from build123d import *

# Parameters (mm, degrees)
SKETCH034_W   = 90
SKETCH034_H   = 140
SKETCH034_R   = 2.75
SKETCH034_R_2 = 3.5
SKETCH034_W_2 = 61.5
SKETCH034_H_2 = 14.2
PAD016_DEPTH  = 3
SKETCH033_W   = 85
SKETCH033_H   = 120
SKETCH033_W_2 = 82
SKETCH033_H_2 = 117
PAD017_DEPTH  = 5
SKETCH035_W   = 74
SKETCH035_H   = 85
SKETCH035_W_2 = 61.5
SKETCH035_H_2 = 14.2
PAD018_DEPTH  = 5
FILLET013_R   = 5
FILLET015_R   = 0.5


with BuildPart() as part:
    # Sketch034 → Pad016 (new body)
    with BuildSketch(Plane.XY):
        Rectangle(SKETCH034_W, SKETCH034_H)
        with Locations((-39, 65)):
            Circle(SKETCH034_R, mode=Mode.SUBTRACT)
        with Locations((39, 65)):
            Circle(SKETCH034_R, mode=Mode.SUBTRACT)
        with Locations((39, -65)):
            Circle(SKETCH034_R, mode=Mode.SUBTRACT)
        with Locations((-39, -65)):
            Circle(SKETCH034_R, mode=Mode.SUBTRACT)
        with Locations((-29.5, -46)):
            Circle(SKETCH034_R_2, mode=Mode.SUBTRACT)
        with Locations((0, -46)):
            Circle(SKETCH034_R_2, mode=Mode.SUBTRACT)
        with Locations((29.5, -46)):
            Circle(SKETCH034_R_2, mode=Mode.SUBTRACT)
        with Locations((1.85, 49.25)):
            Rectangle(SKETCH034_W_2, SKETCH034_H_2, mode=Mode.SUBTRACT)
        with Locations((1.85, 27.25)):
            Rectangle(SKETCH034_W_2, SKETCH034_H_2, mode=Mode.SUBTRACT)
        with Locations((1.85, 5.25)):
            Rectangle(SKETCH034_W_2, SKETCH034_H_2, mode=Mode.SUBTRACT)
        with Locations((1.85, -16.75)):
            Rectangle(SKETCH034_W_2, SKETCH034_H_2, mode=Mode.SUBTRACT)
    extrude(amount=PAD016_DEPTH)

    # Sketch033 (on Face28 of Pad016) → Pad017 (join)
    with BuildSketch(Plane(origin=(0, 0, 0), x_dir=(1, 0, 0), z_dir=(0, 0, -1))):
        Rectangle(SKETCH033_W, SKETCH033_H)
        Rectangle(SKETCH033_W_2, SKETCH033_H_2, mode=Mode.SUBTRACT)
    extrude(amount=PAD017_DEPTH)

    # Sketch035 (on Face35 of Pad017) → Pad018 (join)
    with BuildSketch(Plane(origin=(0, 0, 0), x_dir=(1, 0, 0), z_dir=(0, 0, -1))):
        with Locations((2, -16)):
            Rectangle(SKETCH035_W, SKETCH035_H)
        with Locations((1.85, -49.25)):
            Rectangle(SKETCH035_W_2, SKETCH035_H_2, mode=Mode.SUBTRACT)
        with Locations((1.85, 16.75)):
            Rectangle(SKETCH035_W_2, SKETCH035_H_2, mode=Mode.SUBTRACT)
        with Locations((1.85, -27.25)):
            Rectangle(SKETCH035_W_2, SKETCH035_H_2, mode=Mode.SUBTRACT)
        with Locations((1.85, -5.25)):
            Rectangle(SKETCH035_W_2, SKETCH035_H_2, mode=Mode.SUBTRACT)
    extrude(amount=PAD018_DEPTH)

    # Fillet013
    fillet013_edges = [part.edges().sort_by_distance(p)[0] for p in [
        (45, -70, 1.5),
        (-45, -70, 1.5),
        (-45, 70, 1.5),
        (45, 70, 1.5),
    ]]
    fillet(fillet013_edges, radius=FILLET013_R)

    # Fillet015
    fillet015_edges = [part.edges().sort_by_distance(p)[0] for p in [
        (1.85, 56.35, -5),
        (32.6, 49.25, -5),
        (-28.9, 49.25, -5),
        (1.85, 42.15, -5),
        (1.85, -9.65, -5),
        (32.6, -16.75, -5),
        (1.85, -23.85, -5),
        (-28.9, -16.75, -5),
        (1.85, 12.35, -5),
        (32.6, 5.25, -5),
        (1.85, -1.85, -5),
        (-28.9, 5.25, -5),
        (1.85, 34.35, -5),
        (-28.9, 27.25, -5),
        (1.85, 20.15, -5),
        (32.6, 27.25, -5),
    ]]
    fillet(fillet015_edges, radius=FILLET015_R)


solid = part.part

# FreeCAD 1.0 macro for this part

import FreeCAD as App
import Part
import Sketcher
from FreeCAD import Vector


def edges_at(feature, points):
    """Names of the edges that pass closest to the given points."""
    edges = feature.Shape.Edges
    near = lambda p: min(range(len(edges)), key=lambda i: edges[i].distToShape(Part.Vertex(*p))[0])
    return sorted({f"Edge{near(p) + 1}" for p in points})

doc = App.newDocument("Part")
params = doc.addObject("Spreadsheet::Sheet", "Params")
for row, (alias, value) in enumerate([
    ("sketch1_diameter", "7 mm"),
    ("sketch1_diameter2", "5.5 mm"),
    ("sketch1_width", "90 mm"),
    ("sketch1_height", "140 mm"),
    ("sketch1_width2", "61.5 mm"),
    ("pad1_length", "3 mm"),
    ("sketch2_width", "85 mm"),
    ("sketch2_width2", "82 mm"),
    ("sketch2_height", "120 mm"),
    ("sketch2_height2", "117 mm"),
    ("pad2_length", "5 mm"),
    ("sketch3_width", "74 mm"),
    ("sketch3_height", "85 mm"),
    ("sketch3_width2", "61.5 mm"),
    ("sketch3_height2", "14.2 mm"),
    ("pad3_length", "5 mm"),
    ("fillet_radius", "5 mm"),
    ("fillet2_radius", "0.5 mm"),
], start=1):
    params.set(f"A{row}", alias)
    params.set(f"B{row}", "=" + value)
    params.setAlias(f"B{row}", alias)

body = doc.addObject("PartDesign::Body", "Body")

sketch1 = body.newObject("Sketcher::SketchObject", "Sketch")
sketch1.AttachmentSupport = (doc.getObject("XY_Plane"), [""])
sketch1.MapMode = "FlatFace"
sketch1.addGeometry(Part.LineSegment(Vector(-45, 70, 0), Vector(-45, -70, 0)), False)
sketch1.addGeometry(Part.LineSegment(Vector(-45, -70, 0), Vector(45, -70, 0)), False)
sketch1.addGeometry(Part.LineSegment(Vector(45, -70, 0), Vector(45, 70, 0)), False)
sketch1.addGeometry(Part.LineSegment(Vector(45, 70, 0), Vector(-45, 70, 0)), False)
sketch1.addGeometry(Part.Circle(Vector(-39, -65, 0), Vector(0, 0, 1), 2.8), False)
sketch1.addGeometry(Part.Circle(Vector(-29.5, -46, 0), Vector(0, 0, 1), 3.5), False)
sketch1.addGeometry(Part.Circle(Vector(0, -46, 0), Vector(0, 0, 1), 3.5), False)
sketch1.addGeometry(Part.Circle(Vector(39, -65, 0), Vector(0, 0, 1), 2.8), False)
sketch1.addGeometry(Part.Circle(Vector(29.5, -46, 0), Vector(0, 0, 1), 3.5), False)
sketch1.addGeometry(Part.LineSegment(Vector(32.6, -23.9, 0), Vector(-28.9, -23.9, 0)), False)
sketch1.addGeometry(Part.LineSegment(Vector(-28.9, -23.9, 0), Vector(-28.9, -9.7, 0)), False)
sketch1.addGeometry(Part.LineSegment(Vector(-28.9, -9.7, 0), Vector(32.6, -9.7, 0)), False)
sketch1.addGeometry(Part.LineSegment(Vector(32.6, -9.7, 0), Vector(32.6, -23.9, 0)), False)
sketch1.addGeometry(Part.Circle(Vector(-39, 65, 0), Vector(0, 0, 1), 2.8), False)
sketch1.addGeometry(Part.LineSegment(Vector(32.6, -1.9, 0), Vector(-28.9, -1.9, 0)), False)
sketch1.addGeometry(Part.LineSegment(Vector(-28.9, -1.9, 0), Vector(-28.9, 12.3, 0)), False)
sketch1.addGeometry(Part.LineSegment(Vector(-28.9, 12.3, 0), Vector(32.6, 12.3, 0)), False)
sketch1.addGeometry(Part.LineSegment(Vector(32.6, 12.3, 0), Vector(32.6, -1.9, 0)), False)
sketch1.addGeometry(Part.LineSegment(Vector(32.6, 20.1, 0), Vector(-28.9, 20.1, 0)), False)
sketch1.addGeometry(Part.LineSegment(Vector(-28.9, 20.1, 0), Vector(-28.9, 34.4, 0)), False)
sketch1.addGeometry(Part.LineSegment(Vector(-28.9, 34.4, 0), Vector(32.6, 34.4, 0)), False)
sketch1.addGeometry(Part.LineSegment(Vector(32.6, 34.4, 0), Vector(32.6, 20.1, 0)), False)
sketch1.addGeometry(Part.LineSegment(Vector(32.6, 42.1, 0), Vector(-28.9, 42.1, 0)), False)
sketch1.addGeometry(Part.LineSegment(Vector(-28.9, 42.1, 0), Vector(-28.9, 56.4, 0)), False)
sketch1.addGeometry(Part.LineSegment(Vector(-28.9, 56.4, 0), Vector(32.6, 56.4, 0)), False)
sketch1.addGeometry(Part.LineSegment(Vector(32.6, 56.4, 0), Vector(32.6, 42.1, 0)), False)
sketch1.addGeometry(Part.Circle(Vector(39, 65, 0), Vector(0, 0, 1), 2.8), False)
sketch1.addConstraint(Sketcher.Constraint("Coincident", 0, 2, 1, 1))
sketch1.addConstraint(Sketcher.Constraint("Coincident", 1, 2, 2, 1))
sketch1.addConstraint(Sketcher.Constraint("Coincident", 2, 2, 3, 1))
sketch1.addConstraint(Sketcher.Constraint("Coincident", 3, 2, 0, 1))
sketch1.addConstraint(Sketcher.Constraint("Coincident", 9, 2, 10, 1))
sketch1.addConstraint(Sketcher.Constraint("Coincident", 10, 2, 11, 1))
sketch1.addConstraint(Sketcher.Constraint("Coincident", 11, 2, 12, 1))
sketch1.addConstraint(Sketcher.Constraint("Coincident", 12, 2, 9, 1))
sketch1.addConstraint(Sketcher.Constraint("Coincident", 14, 2, 15, 1))
sketch1.addConstraint(Sketcher.Constraint("Coincident", 15, 2, 16, 1))
sketch1.addConstraint(Sketcher.Constraint("Coincident", 16, 2, 17, 1))
sketch1.addConstraint(Sketcher.Constraint("Coincident", 17, 2, 14, 1))
sketch1.addConstraint(Sketcher.Constraint("Coincident", 18, 2, 19, 1))
sketch1.addConstraint(Sketcher.Constraint("Coincident", 19, 2, 20, 1))
sketch1.addConstraint(Sketcher.Constraint("Coincident", 20, 2, 21, 1))
sketch1.addConstraint(Sketcher.Constraint("Coincident", 21, 2, 18, 1))
sketch1.addConstraint(Sketcher.Constraint("Coincident", 22, 2, 23, 1))
sketch1.addConstraint(Sketcher.Constraint("Coincident", 23, 2, 24, 1))
sketch1.addConstraint(Sketcher.Constraint("Coincident", 24, 2, 25, 1))
sketch1.addConstraint(Sketcher.Constraint("Coincident", 25, 2, 22, 1))
sketch1.addConstraint(Sketcher.Constraint("Vertical", 0))
sketch1.addConstraint(Sketcher.Constraint("Horizontal", 1))
sketch1.addConstraint(Sketcher.Constraint("Vertical", 2))
sketch1.addConstraint(Sketcher.Constraint("Horizontal", 3))
sketch1.addConstraint(Sketcher.Constraint("Horizontal", 9))
sketch1.addConstraint(Sketcher.Constraint("Vertical", 10))
sketch1.addConstraint(Sketcher.Constraint("Horizontal", 11))
sketch1.addConstraint(Sketcher.Constraint("Vertical", 12))
sketch1.addConstraint(Sketcher.Constraint("Horizontal", 14))
sketch1.addConstraint(Sketcher.Constraint("Vertical", 15))
sketch1.addConstraint(Sketcher.Constraint("Horizontal", 16))
sketch1.addConstraint(Sketcher.Constraint("Vertical", 17))
sketch1.addConstraint(Sketcher.Constraint("Horizontal", 18))
sketch1.addConstraint(Sketcher.Constraint("Vertical", 19))
sketch1.addConstraint(Sketcher.Constraint("Horizontal", 20))
sketch1.addConstraint(Sketcher.Constraint("Vertical", 21))
sketch1.addConstraint(Sketcher.Constraint("Horizontal", 22))
sketch1.addConstraint(Sketcher.Constraint("Vertical", 23))
sketch1.addConstraint(Sketcher.Constraint("Horizontal", 24))
sketch1.addConstraint(Sketcher.Constraint("Vertical", 25))
sketch1.addConstraint(Sketcher.Constraint("Equal", 5, 6))
sketch1.addConstraint(Sketcher.Constraint("Equal", 4, 7))
sketch1.addConstraint(Sketcher.Constraint("Equal", 6, 8))
sketch1.addConstraint(Sketcher.Constraint("Equal", 7, 13))
sketch1.addConstraint(Sketcher.Constraint("Equal", 13, 26))
sketch1.addConstraint(Sketcher.Constraint("Symmetric", 7, 3, 13, 3, -1, 1))
sketch1.addConstraint(Sketcher.Constraint("Symmetric", 4, 3, 26, 3, -1, 1))
sketch1.addConstraint(Sketcher.Constraint("Symmetric", 0, 2, 2, 2, -1, 1))
sketch1.addConstraint(Sketcher.Constraint("Symmetric", 4, 3, 7, 3, -2))
sketch1.addConstraint(Sketcher.Constraint("Symmetric", 5, 3, 8, 3, -2))
sketch1.addConstraint(Sketcher.Constraint("PointOnObject", 6, 3, -2))
sketch1.addConstraint(Sketcher.Constraint("Horizontal", 5, 3, 6, 3))
sketch1.addConstraint(Sketcher.Constraint("Vertical", 10, 2, 14, 2))
sketch1.addConstraint(Sketcher.Constraint("Vertical", 12, 2, 16, 2))
sketch1.addConstraint(Sketcher.Constraint("Vertical", 15, 2, 18, 2))
sketch1.addConstraint(Sketcher.Constraint("Vertical", 17, 2, 20, 2))
sketch1.addConstraint(Sketcher.Constraint("Vertical", 19, 2, 22, 2))
sketch1.addConstraint(Sketcher.Constraint("Vertical", 21, 2, 24, 2))
sketch1.addConstraint(Sketcher.Constraint("Equal", 12, 15))
sketch1.addConstraint(Sketcher.Constraint("Equal", 17, 19))
sketch1.addConstraint(Sketcher.Constraint("Equal", 21, 23))
sketch1.addConstraint(Sketcher.Constraint("Diameter", 5, 7.0))
sketch1.addConstraint(Sketcher.Constraint("Diameter", 4, 5.5))
sketch1.addConstraint(Sketcher.Constraint("DistanceX", 1, 1, 1, 2, 90.0))
sketch1.addConstraint(Sketcher.Constraint("DistanceY", 0, 2, 0, 1, 140.0))
sketch1.addConstraint(Sketcher.Constraint("DistanceX", 9, 2, 9, 1, 61.5))
sketch1.addConstraint(Sketcher.Constraint("DistanceY", 10, 1, 10, 2, 14.2))
sketch1.addConstraint(Sketcher.Constraint("DistanceX", 4, 3, -1, 1, 39.0))
sketch1.addConstraint(Sketcher.Constraint("DistanceY", 4, 3, -1, 1, 65.0))
sketch1.addConstraint(Sketcher.Constraint("DistanceY", 5, 3, -1, 1, 46.0))
sketch1.addConstraint(Sketcher.Constraint("DistanceX", 5, 3, 8, 3, 59.0))
sketch1.addConstraint(Sketcher.Constraint("DistanceY", 9, 2, 14, 2, 22.0))
sketch1.addConstraint(Sketcher.Constraint("DistanceY", 14, 2, 18, 2, 22.0))
sketch1.addConstraint(Sketcher.Constraint("DistanceY", 18, 2, 22, 2, 22.0))
sketch1.addConstraint(Sketcher.Constraint("DistanceX", 9, 2, -1, 1, 28.9))
sketch1.addConstraint(Sketcher.Constraint("DistanceY", 9, 2, -1, 1, 23.85))
sketch1.setExpression("Constraints[61]", "Params.sketch1_diameter")
sketch1.setExpression("Constraints[62]", "Params.sketch1_diameter2")
sketch1.setExpression("Constraints[63]", "Params.sketch1_width")
sketch1.setExpression("Constraints[64]", "Params.sketch1_height")
sketch1.setExpression("Constraints[65]", "Params.sketch1_width2")
pad1 = body.newObject("PartDesign::Pad", "Pad")
pad1.Profile = sketch1
pad1.setExpression("Length", "Params.pad1_length")

sketch2 = body.newObject("Sketcher::SketchObject", "Sketch001")
sketch2.AttachmentSupport = (doc.getObject("XY_Plane"), [""])
sketch2.MapMode = "FlatFace"
sketch2.addGeometry(Part.LineSegment(Vector(-42, -60, 0), Vector(-42, 60, 0)), False)
sketch2.addGeometry(Part.LineSegment(Vector(-42, 60, 0), Vector(42, 60, 0)), False)
sketch2.addGeometry(Part.LineSegment(Vector(42, 60, 0), Vector(42, -60, 0)), False)
sketch2.addGeometry(Part.LineSegment(Vector(42, -60, 0), Vector(-42, -60, 0)), False)
sketch2.addGeometry(Part.LineSegment(Vector(41, 58, 0), Vector(-41, 58, 0)), False)
sketch2.addGeometry(Part.LineSegment(Vector(-41, 58, 0), Vector(-41, -58, 0)), False)
sketch2.addGeometry(Part.LineSegment(Vector(-41, -58, 0), Vector(41, -58, 0)), False)
sketch2.addGeometry(Part.LineSegment(Vector(41, -58, 0), Vector(41, 58, 0)), False)
sketch2.addConstraint(Sketcher.Constraint("Coincident", 0, 2, 1, 1))
sketch2.addConstraint(Sketcher.Constraint("Coincident", 1, 2, 2, 1))
sketch2.addConstraint(Sketcher.Constraint("Coincident", 2, 2, 3, 1))
sketch2.addConstraint(Sketcher.Constraint("Coincident", 3, 2, 0, 1))
sketch2.addConstraint(Sketcher.Constraint("Coincident", 4, 2, 5, 1))
sketch2.addConstraint(Sketcher.Constraint("Coincident", 5, 2, 6, 1))
sketch2.addConstraint(Sketcher.Constraint("Coincident", 6, 2, 7, 1))
sketch2.addConstraint(Sketcher.Constraint("Coincident", 7, 2, 4, 1))
sketch2.addConstraint(Sketcher.Constraint("Vertical", 0))
sketch2.addConstraint(Sketcher.Constraint("Horizontal", 1))
sketch2.addConstraint(Sketcher.Constraint("Vertical", 2))
sketch2.addConstraint(Sketcher.Constraint("Horizontal", 3))
sketch2.addConstraint(Sketcher.Constraint("Horizontal", 4))
sketch2.addConstraint(Sketcher.Constraint("Vertical", 5))
sketch2.addConstraint(Sketcher.Constraint("Horizontal", 6))
sketch2.addConstraint(Sketcher.Constraint("Vertical", 7))
sketch2.addConstraint(Sketcher.Constraint("Symmetric", 0, 2, 2, 2, -1, 1))
sketch2.addConstraint(Sketcher.Constraint("Symmetric", 4, 2, 6, 2, -1, 1))
sketch2.addConstraint(Sketcher.Constraint("DistanceX", 1, 1, 1, 2, 85.0))
sketch2.addConstraint(Sketcher.Constraint("DistanceX", 4, 2, 4, 1, 82.0))
sketch2.addConstraint(Sketcher.Constraint("DistanceY", 0, 1, 0, 2, 120.0))
sketch2.addConstraint(Sketcher.Constraint("DistanceY", 5, 2, 5, 1, 117.0))
sketch2.setExpression("Constraints[18]", "Params.sketch2_width")
sketch2.setExpression("Constraints[19]", "Params.sketch2_width2")
sketch2.setExpression("Constraints[20]", "Params.sketch2_height")
sketch2.setExpression("Constraints[21]", "Params.sketch2_height2")
pad2 = body.newObject("PartDesign::Pad", "Pad001")
pad2.Profile = sketch2
pad2.setExpression("Length", "Params.pad2_length")
pad2.Reversed = True

sketch3 = body.newObject("Sketcher::SketchObject", "Sketch002")
sketch3.AttachmentSupport = (doc.getObject("XY_Plane"), [""])
sketch3.MapMode = "FlatFace"
sketch3.addGeometry(Part.LineSegment(Vector(-35, -26, 0), Vector(-35, 58, 0)), False)
sketch3.addGeometry(Part.LineSegment(Vector(-35, 58, 0), Vector(39, 58, 0)), False)
sketch3.addGeometry(Part.LineSegment(Vector(39, 58, 0), Vector(39, -26, 0)), False)
sketch3.addGeometry(Part.LineSegment(Vector(39, -26, 0), Vector(-35, -26, 0)), False)
sketch3.addGeometry(Part.LineSegment(Vector(33, 56, 0), Vector(-29, 56, 0)), False)
sketch3.addGeometry(Part.LineSegment(Vector(-29, 56, 0), Vector(-29, 42, 0)), False)
sketch3.addGeometry(Part.LineSegment(Vector(-29, 42, 0), Vector(33, 42, 0)), False)
sketch3.addGeometry(Part.LineSegment(Vector(33, 42, 0), Vector(33, 56, 0)), False)
sketch3.addGeometry(Part.LineSegment(Vector(33, 34, 0), Vector(-29, 34, 0)), False)
sketch3.addGeometry(Part.LineSegment(Vector(-29, 34, 0), Vector(-29, 20, 0)), False)
sketch3.addGeometry(Part.LineSegment(Vector(-29, 20, 0), Vector(33, 20, 0)), False)
sketch3.addGeometry(Part.LineSegment(Vector(33, 20, 0), Vector(33, 34, 0)), False)
sketch3.addGeometry(Part.LineSegment(Vector(33, 12, 0), Vector(-29, 12, 0)), False)
sketch3.addGeometry(Part.LineSegment(Vector(-29, 12, 0), Vector(-29, -2, 0)), False)
sketch3.addGeometry(Part.LineSegment(Vector(-29, -2, 0), Vector(33, -2, 0)), False)
sketch3.addGeometry(Part.LineSegment(Vector(33, -2, 0), Vector(33, 12, 0)), False)
sketch3.addGeometry(Part.LineSegment(Vector(33, -10, 0), Vector(-29, -10, 0)), False)
sketch3.addGeometry(Part.LineSegment(Vector(-29, -10, 0), Vector(-29, -24, 0)), False)
sketch3.addGeometry(Part.LineSegment(Vector(-29, -24, 0), Vector(33, -24, 0)), False)
sketch3.addGeometry(Part.LineSegment(Vector(33, -24, 0), Vector(33, -10, 0)), False)
sketch3.addConstraint(Sketcher.Constraint("Coincident", 0, 2, 1, 1))
sketch3.addConstraint(Sketcher.Constraint("Coincident", 1, 2, 2, 1))
sketch3.addConstraint(Sketcher.Constraint("Coincident", 2, 2, 3, 1))
sketch3.addConstraint(Sketcher.Constraint("Coincident", 3, 2, 0, 1))
sketch3.addConstraint(Sketcher.Constraint("Coincident", 4, 2, 5, 1))
sketch3.addConstraint(Sketcher.Constraint("Coincident", 5, 2, 6, 1))
sketch3.addConstraint(Sketcher.Constraint("Coincident", 6, 2, 7, 1))
sketch3.addConstraint(Sketcher.Constraint("Coincident", 7, 2, 4, 1))
sketch3.addConstraint(Sketcher.Constraint("Coincident", 8, 2, 9, 1))
sketch3.addConstraint(Sketcher.Constraint("Coincident", 9, 2, 10, 1))
sketch3.addConstraint(Sketcher.Constraint("Coincident", 10, 2, 11, 1))
sketch3.addConstraint(Sketcher.Constraint("Coincident", 11, 2, 8, 1))
sketch3.addConstraint(Sketcher.Constraint("Coincident", 12, 2, 13, 1))
sketch3.addConstraint(Sketcher.Constraint("Coincident", 13, 2, 14, 1))
sketch3.addConstraint(Sketcher.Constraint("Coincident", 14, 2, 15, 1))
sketch3.addConstraint(Sketcher.Constraint("Coincident", 15, 2, 12, 1))
sketch3.addConstraint(Sketcher.Constraint("Coincident", 16, 2, 17, 1))
sketch3.addConstraint(Sketcher.Constraint("Coincident", 17, 2, 18, 1))
sketch3.addConstraint(Sketcher.Constraint("Coincident", 18, 2, 19, 1))
sketch3.addConstraint(Sketcher.Constraint("Coincident", 19, 2, 16, 1))
sketch3.addConstraint(Sketcher.Constraint("Vertical", 0))
sketch3.addConstraint(Sketcher.Constraint("Horizontal", 1))
sketch3.addConstraint(Sketcher.Constraint("Vertical", 2))
sketch3.addConstraint(Sketcher.Constraint("Horizontal", 3))
sketch3.addConstraint(Sketcher.Constraint("Horizontal", 4))
sketch3.addConstraint(Sketcher.Constraint("Vertical", 5))
sketch3.addConstraint(Sketcher.Constraint("Horizontal", 6))
sketch3.addConstraint(Sketcher.Constraint("Vertical", 7))
sketch3.addConstraint(Sketcher.Constraint("Horizontal", 8))
sketch3.addConstraint(Sketcher.Constraint("Vertical", 9))
sketch3.addConstraint(Sketcher.Constraint("Horizontal", 10))
sketch3.addConstraint(Sketcher.Constraint("Vertical", 11))
sketch3.addConstraint(Sketcher.Constraint("Horizontal", 12))
sketch3.addConstraint(Sketcher.Constraint("Vertical", 13))
sketch3.addConstraint(Sketcher.Constraint("Horizontal", 14))
sketch3.addConstraint(Sketcher.Constraint("Vertical", 15))
sketch3.addConstraint(Sketcher.Constraint("Horizontal", 16))
sketch3.addConstraint(Sketcher.Constraint("Vertical", 17))
sketch3.addConstraint(Sketcher.Constraint("Horizontal", 18))
sketch3.addConstraint(Sketcher.Constraint("Vertical", 19))
sketch3.addConstraint(Sketcher.Constraint("Vertical", 5, 2, 8, 2))
sketch3.addConstraint(Sketcher.Constraint("Vertical", 7, 2, 10, 2))
sketch3.addConstraint(Sketcher.Constraint("Vertical", 9, 2, 12, 2))
sketch3.addConstraint(Sketcher.Constraint("Vertical", 11, 2, 14, 2))
sketch3.addConstraint(Sketcher.Constraint("Vertical", 13, 2, 16, 2))
sketch3.addConstraint(Sketcher.Constraint("Vertical", 15, 2, 18, 2))
sketch3.addConstraint(Sketcher.Constraint("Equal", 7, 9))
sketch3.addConstraint(Sketcher.Constraint("Equal", 11, 13))
sketch3.addConstraint(Sketcher.Constraint("Equal", 15, 17))
sketch3.addConstraint(Sketcher.Constraint("DistanceX", 1, 1, 1, 2, 74.0))
sketch3.addConstraint(Sketcher.Constraint("DistanceY", 0, 1, 0, 2, 85.0))
sketch3.addConstraint(Sketcher.Constraint("DistanceX", 4, 2, 4, 1, 61.5))
sketch3.addConstraint(Sketcher.Constraint("DistanceY", 5, 2, 5, 1, 14.2))
sketch3.addConstraint(Sketcher.Constraint("DistanceX", 0, 2, -1, 1, 35.0))
sketch3.addConstraint(Sketcher.Constraint("DistanceY", 8, 2, 4, 2, 22.0))
sketch3.addConstraint(Sketcher.Constraint("DistanceY", 12, 2, 8, 2, 22.0))
sketch3.addConstraint(Sketcher.Constraint("DistanceY", 16, 2, 12, 2, 22.0))
sketch3.addConstraint(Sketcher.Constraint("DistanceY", -1, 1, 0, 2, 58.5))
sketch3.addConstraint(Sketcher.Constraint("DistanceX", 4, 2, -1, 1, 28.9))
sketch3.addConstraint(Sketcher.Constraint("DistanceY", -1, 1, 4, 2, 56.35))
sketch3.setExpression("Constraints[49]", "Params.sketch3_width")
sketch3.setExpression("Constraints[50]", "Params.sketch3_height")
sketch3.setExpression("Constraints[51]", "Params.sketch3_width2")
sketch3.setExpression("Constraints[52]", "Params.sketch3_height2")
pad3 = body.newObject("PartDesign::Pad", "Pad002")
pad3.Profile = sketch3
pad3.setExpression("Length", "Params.pad3_length")
pad3.Reversed = True
doc.recompute()

fillet = body.newObject("PartDesign::Fillet", "Fillet")
fillet.Base = (pad3, edges_at(pad3, [
    (45, -70, 1.5),
    (-45, -70, 1.5),
    (-45, 70, 1.5),
    (45, 70, 1.5),
]))
fillet.setExpression("Radius", "Params.fillet_radius")
doc.recompute()

fillet2 = body.newObject("PartDesign::Fillet", "Fillet001")
fillet2.Base = (fillet, edges_at(fillet, [
    (1.85, 56.35, -5),
    (32.6, 49.25, -5),
    (-28.9, 49.25, -5),
    (1.85, 42.15, -5),
    (1.85, -9.65, -5),
    (32.6, -16.75, -5),
    (1.85, -23.85, -5),
    (-28.9, -16.75, -5),
    (1.85, 12.35, -5),
    (32.6, 5.25, -5),
    (1.85, -1.85, -5),
    (-28.9, 5.25, -5),
    (1.85, 34.35, -5),
    (-28.9, 27.25, -5),
    (1.85, 20.15, -5),
    (32.6, 27.25, -5),
]))
fillet2.setExpression("Radius", "Params.fillet2_radius")

doc.recompute()
